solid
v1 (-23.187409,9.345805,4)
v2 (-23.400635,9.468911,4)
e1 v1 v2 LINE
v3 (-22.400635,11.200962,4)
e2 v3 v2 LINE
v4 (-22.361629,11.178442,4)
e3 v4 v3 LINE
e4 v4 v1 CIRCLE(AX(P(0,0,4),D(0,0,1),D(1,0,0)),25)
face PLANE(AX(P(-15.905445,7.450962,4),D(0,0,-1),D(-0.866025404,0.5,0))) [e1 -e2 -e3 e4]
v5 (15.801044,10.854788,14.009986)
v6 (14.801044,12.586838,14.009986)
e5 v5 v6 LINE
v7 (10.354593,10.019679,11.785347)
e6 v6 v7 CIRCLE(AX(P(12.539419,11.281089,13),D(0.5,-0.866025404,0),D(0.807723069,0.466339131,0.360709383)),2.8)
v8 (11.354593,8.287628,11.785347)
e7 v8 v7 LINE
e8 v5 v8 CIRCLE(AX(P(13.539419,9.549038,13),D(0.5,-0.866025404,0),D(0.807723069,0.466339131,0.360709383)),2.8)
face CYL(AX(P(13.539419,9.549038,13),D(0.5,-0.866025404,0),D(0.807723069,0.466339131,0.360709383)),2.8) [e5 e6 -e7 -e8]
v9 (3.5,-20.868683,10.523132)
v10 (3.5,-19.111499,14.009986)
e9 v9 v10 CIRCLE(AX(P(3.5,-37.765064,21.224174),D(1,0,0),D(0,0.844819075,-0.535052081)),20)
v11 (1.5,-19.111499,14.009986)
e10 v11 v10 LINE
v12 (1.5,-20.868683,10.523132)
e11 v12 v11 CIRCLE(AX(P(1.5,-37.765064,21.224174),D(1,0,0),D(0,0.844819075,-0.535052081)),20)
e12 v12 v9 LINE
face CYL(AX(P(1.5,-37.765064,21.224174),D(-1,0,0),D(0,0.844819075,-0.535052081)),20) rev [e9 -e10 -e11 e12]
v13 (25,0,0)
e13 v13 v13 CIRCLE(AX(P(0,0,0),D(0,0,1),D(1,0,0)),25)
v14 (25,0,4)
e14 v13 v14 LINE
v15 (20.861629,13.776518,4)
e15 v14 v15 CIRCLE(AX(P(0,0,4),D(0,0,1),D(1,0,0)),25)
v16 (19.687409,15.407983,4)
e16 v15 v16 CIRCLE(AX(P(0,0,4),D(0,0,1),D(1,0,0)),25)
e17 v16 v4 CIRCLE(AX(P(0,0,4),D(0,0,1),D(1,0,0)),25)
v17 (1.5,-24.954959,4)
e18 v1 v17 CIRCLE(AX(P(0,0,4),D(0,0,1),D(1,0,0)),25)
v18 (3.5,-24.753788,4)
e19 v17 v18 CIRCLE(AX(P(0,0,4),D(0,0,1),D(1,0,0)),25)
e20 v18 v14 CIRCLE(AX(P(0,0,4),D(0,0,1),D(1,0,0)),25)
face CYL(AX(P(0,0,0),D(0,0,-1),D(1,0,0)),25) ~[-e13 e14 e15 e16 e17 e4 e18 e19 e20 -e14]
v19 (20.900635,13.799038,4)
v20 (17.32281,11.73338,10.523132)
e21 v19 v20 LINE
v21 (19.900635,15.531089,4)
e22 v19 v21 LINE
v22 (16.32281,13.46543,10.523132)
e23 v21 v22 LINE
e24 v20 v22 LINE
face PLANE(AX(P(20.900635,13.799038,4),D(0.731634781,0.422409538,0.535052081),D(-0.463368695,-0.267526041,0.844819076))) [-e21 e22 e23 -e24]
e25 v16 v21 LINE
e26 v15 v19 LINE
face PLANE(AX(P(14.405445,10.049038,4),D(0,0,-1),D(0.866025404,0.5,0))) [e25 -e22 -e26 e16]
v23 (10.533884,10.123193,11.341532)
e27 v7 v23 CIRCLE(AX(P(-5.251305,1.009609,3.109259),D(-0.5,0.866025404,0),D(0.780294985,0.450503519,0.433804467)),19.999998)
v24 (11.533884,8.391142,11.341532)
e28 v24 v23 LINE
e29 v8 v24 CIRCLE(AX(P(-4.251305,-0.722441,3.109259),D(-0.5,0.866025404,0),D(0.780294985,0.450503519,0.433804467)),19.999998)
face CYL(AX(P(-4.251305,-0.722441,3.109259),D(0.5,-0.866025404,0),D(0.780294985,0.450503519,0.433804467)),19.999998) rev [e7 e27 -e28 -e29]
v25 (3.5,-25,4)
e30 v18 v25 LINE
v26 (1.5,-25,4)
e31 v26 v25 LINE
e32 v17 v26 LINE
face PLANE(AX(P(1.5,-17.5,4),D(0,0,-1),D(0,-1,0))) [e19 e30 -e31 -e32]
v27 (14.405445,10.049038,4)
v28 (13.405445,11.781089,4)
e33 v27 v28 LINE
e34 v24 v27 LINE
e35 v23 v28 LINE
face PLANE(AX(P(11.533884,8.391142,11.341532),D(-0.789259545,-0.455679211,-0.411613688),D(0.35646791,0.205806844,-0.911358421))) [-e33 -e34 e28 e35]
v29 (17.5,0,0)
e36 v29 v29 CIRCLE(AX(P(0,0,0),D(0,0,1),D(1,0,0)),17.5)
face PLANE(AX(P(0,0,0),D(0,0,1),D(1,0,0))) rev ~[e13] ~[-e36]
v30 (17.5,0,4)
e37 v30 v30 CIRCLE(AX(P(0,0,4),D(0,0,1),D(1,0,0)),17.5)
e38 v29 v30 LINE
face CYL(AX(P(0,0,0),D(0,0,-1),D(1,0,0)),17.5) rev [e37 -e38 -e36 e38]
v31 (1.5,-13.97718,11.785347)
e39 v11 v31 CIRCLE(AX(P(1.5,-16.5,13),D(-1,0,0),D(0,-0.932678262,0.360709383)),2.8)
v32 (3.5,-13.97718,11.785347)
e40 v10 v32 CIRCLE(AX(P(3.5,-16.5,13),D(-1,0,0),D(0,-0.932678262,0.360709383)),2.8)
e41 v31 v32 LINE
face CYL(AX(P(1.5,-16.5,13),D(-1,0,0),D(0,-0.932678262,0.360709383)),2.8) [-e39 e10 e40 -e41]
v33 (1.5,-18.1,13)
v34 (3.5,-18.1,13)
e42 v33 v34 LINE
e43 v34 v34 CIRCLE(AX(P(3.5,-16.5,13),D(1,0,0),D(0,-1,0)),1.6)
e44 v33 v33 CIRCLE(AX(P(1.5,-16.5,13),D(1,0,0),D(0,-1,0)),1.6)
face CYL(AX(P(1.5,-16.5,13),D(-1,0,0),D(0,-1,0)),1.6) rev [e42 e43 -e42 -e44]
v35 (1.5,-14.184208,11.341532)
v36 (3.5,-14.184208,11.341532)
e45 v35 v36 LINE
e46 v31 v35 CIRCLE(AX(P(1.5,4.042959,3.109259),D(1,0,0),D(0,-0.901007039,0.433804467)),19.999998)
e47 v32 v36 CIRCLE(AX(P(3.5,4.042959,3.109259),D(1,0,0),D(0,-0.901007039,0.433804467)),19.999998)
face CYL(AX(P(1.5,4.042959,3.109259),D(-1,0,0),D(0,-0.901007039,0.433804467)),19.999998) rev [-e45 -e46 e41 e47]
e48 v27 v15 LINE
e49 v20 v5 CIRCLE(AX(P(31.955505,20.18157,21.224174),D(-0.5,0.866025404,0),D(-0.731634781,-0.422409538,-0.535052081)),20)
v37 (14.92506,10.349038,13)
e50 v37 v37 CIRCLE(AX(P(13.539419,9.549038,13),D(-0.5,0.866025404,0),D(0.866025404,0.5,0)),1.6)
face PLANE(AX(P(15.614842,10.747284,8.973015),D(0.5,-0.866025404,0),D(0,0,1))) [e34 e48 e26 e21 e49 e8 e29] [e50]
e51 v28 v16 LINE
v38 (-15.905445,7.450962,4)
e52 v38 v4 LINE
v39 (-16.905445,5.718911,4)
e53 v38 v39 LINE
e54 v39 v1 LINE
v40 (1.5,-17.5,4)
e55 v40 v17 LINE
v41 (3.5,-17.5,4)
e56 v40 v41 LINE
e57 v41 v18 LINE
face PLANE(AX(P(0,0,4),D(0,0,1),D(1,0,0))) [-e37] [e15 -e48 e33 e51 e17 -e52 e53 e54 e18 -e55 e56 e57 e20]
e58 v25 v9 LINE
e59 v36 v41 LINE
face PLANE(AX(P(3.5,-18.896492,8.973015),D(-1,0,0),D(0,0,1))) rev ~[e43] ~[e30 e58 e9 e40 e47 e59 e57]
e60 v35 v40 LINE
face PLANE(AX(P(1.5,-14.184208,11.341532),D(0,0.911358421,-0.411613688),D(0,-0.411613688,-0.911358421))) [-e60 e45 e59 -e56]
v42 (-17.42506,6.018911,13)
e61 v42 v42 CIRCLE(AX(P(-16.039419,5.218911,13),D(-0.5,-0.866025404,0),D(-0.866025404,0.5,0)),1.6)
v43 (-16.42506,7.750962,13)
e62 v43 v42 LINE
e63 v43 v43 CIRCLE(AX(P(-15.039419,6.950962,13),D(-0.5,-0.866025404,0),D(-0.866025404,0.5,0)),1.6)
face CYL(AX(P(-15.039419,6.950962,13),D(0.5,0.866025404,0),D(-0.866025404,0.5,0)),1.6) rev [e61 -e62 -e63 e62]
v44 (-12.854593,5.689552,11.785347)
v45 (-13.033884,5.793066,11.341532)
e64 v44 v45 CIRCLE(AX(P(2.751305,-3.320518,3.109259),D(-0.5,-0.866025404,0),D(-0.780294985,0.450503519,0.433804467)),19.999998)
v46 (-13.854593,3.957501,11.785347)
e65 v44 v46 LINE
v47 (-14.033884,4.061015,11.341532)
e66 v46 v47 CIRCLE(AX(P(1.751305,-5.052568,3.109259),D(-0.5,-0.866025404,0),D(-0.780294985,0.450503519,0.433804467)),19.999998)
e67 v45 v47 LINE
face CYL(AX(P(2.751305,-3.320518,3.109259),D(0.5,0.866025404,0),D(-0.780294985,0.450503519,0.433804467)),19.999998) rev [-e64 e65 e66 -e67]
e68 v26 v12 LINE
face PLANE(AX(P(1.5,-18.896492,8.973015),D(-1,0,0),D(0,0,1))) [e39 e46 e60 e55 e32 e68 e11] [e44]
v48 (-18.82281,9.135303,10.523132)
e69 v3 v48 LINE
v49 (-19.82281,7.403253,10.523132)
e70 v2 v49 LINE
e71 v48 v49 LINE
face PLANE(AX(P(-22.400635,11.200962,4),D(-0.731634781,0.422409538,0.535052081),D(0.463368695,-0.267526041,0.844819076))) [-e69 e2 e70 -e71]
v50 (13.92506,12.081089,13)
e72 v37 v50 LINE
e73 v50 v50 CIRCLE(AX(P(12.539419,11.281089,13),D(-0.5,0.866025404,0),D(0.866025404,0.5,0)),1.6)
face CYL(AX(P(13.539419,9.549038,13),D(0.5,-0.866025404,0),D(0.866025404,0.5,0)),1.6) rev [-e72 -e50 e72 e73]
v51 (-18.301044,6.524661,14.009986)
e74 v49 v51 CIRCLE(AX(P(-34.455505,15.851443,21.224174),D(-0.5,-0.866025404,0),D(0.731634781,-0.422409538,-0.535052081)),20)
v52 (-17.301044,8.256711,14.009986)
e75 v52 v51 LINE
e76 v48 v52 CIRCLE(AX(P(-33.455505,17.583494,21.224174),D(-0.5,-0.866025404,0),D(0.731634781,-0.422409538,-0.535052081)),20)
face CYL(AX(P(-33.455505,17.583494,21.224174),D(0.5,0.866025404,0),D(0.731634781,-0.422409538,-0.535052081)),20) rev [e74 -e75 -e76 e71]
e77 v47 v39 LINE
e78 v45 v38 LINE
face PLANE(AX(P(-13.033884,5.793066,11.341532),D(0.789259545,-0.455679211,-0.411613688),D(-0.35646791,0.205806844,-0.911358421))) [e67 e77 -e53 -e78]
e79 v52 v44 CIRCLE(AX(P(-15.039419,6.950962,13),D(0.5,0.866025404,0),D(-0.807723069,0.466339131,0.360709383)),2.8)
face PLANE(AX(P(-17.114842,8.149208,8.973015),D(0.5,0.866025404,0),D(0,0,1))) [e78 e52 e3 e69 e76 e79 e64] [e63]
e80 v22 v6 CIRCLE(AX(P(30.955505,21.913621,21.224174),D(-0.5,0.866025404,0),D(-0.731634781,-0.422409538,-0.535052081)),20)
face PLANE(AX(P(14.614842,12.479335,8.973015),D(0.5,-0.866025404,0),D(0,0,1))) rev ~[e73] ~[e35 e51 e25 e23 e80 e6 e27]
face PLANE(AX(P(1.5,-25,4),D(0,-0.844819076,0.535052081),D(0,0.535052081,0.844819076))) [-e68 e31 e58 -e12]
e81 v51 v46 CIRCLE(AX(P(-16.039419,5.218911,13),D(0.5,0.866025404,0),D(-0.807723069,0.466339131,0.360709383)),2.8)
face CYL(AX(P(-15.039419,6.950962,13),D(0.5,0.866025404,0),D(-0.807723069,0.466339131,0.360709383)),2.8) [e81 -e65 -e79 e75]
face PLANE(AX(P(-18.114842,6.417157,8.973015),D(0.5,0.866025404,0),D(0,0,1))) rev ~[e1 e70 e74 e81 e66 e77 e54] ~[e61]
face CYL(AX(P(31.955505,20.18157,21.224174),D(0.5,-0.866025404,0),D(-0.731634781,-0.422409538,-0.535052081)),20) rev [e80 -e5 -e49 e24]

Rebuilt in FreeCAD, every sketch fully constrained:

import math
import FreeCAD as App
import Part
import Sketcher
from FreeCAD import Vector
Q = App.Units.Quantity

doc = App.newDocument("Part")
params = doc.addObject("Spreadsheet::Sheet", "Params")
for row, (alias, value) in enumerate([
    ("sketch1_diameter", "50 mm"),
    ("sketch1_diameter2", "35 mm"),
    ("pad1_length", "4 mm"),
    ("sketch2_radius", "19.999998 mm"),
    ("sketch2_diameter", "3.2 mm"),
    ("sketch2_radius2", "2.8 mm"),
    ("sketch2_height", "7.5 mm"),
    ("pad2_length", "2 mm"),
], start=1):
    params.set(f"A{row}", alias)
    params.set(f"B{row}", "=" + value)
    params.setAlias(f"B{row}", alias)

body = doc.addObject("PartDesign::Body", "Body")

sketch1 = body.newObject("Sketcher::SketchObject", "Sketch")
sketch1.AttachmentSupport = (doc.getObject("XY_Plane"), [""])
sketch1.MapMode = "FlatFace"
sketch1.addGeometry([
    Part.Circle(Vector(0, 0, 0), Vector(0, 0, 1), 25),
    Part.Circle(Vector(0, 0, 0), Vector(0, 0, 1), 18),
], False)
sketch1.addConstraint([
    Sketcher.Constraint("Coincident", 0, 3, -1, 1),
    Sketcher.Constraint("Coincident", 1, 3, -1, 1),
    Sketcher.Constraint("Diameter", 0, Q("50 mm")),
    Sketcher.Constraint("Diameter", 1, Q("35 mm")),
])
sketch1.setExpression("Constraints[2]", "Params.sketch1_diameter")
sketch1.setExpression("Constraints[3]", "Params.sketch1_diameter2")
pad1 = body.newObject("PartDesign::Pad", "Pad")
pad1.Profile = sketch1
pad1.setExpression("Length", "Params.pad1_length")

sketch2 = body.newObject("Sketcher::SketchObject", "Sketch001")
sketch2.Placement = App.Placement(Vector(-0.75, 1.299038, 0), App.Rotation(Vector(0, 0, -1), Vector(-0.866025404, -0.5, 0), Vector(-0.5, 0.866025404, 0), "ZXY"))
sketch2.addGeometry([
    Part.LineSegment(Vector(-4, -17.5, 0), Vector(-11.34, -14.18, 0)),
    Part.ArcOfCircle(Part.Circle(Vector(-3.11, 4.04, 0), Vector(0, 0, 1), 20), math.radians(-115.71), math.radians(-114.31)),
    Part.ArcOfCircle(Part.Circle(Vector(-13, -16.5, 0), Vector(0, 0, 1), 2.8), math.radians(64), math.radians(249)),
    Part.ArcOfCircle(Part.Circle(Vector(-21.22, -37.77, 0), Vector(0, 0, 1), 20), math.radians(57.65), math.radians(68.86)),
    Part.LineSegment(Vector(-10.52, -20.87, 0), Vector(-4, -25, 0)),
    Part.LineSegment(Vector(-4, -25, 0), Vector(-4, -17.5, 0)),
    Part.Circle(Vector(-13, -16.5, 0), Vector(0, 0, 1), 1.6),
], False)
sketch2.addConstraint([
    Sketcher.Constraint("Tangent", 0, 2, 1, 2),
    Sketcher.Constraint("Tangent", 1, 1, 2, 1),
    Sketcher.Constraint("Tangent", 2, 2, 3, 2),
    Sketcher.Constraint("Tangent", 3, 1, 4, 1),
    Sketcher.Constraint("Coincident", 4, 2, 5, 1),
    Sketcher.Constraint("Coincident", 5, 2, 0, 1),
    Sketcher.Constraint("Vertical", 5),
    Sketcher.Constraint("Coincident", 6, 3, 2, 3),
    Sketcher.Constraint("Equal", 1, 3),
    Sketcher.Constraint("Radius", 1, Q("19.999998 mm")),
    Sketcher.Constraint("Diameter", 6, Q("3.2 mm")),
    Sketcher.Constraint("Radius", 2, Q("2.8 mm")),
    Sketcher.Constraint("DistanceY", 5, 1, 5, 2, Q("7.5 mm")),
    Sketcher.Constraint("DistanceX", 2, 3, -1, 1, Q("13 mm")),
    Sketcher.Constraint("DistanceX", 4, 2, -1, 1, Q("4 mm")),
    Sketcher.Constraint("DistanceY", 4, 2, -1, 1, Q("25 mm")),
    Sketcher.Constraint("DistanceY", 5, 2, 6, 3, Q("1 mm")),
    Sketcher.Constraint("DistanceY", 2, 2, -1, 1, Q("19.111499 mm")),
    Sketcher.Constraint("DistanceX", 0, 2, 3, 1, Q("0.8184 mm")),
])
sketch2.setExpression("Constraints[9]", "Params.sketch2_radius")
sketch2.setExpression("Constraints[10]", "Params.sketch2_diameter")
sketch2.setExpression("Constraints[11]", "Params.sketch2_radius2")
sketch2.setExpression("Constraints[12]", "Params.sketch2_height")
pad2 = body.newObject("PartDesign::Pad", "Pad001")
pad2.Profile = sketch2
pad2.setExpression("Length", "Params.pad2_length")
doc.recompute()

polarpattern = body.newObject("PartDesign::PolarPattern", "PolarPattern")
polarpattern.Originals = [pad2]
polarpattern.Axis = (doc.getObject("Z_Axis"), [""])
polarpattern.Angle = 360
polarpattern.Occurrences = 3
body.Tip = polarpattern

doc.recompute()
